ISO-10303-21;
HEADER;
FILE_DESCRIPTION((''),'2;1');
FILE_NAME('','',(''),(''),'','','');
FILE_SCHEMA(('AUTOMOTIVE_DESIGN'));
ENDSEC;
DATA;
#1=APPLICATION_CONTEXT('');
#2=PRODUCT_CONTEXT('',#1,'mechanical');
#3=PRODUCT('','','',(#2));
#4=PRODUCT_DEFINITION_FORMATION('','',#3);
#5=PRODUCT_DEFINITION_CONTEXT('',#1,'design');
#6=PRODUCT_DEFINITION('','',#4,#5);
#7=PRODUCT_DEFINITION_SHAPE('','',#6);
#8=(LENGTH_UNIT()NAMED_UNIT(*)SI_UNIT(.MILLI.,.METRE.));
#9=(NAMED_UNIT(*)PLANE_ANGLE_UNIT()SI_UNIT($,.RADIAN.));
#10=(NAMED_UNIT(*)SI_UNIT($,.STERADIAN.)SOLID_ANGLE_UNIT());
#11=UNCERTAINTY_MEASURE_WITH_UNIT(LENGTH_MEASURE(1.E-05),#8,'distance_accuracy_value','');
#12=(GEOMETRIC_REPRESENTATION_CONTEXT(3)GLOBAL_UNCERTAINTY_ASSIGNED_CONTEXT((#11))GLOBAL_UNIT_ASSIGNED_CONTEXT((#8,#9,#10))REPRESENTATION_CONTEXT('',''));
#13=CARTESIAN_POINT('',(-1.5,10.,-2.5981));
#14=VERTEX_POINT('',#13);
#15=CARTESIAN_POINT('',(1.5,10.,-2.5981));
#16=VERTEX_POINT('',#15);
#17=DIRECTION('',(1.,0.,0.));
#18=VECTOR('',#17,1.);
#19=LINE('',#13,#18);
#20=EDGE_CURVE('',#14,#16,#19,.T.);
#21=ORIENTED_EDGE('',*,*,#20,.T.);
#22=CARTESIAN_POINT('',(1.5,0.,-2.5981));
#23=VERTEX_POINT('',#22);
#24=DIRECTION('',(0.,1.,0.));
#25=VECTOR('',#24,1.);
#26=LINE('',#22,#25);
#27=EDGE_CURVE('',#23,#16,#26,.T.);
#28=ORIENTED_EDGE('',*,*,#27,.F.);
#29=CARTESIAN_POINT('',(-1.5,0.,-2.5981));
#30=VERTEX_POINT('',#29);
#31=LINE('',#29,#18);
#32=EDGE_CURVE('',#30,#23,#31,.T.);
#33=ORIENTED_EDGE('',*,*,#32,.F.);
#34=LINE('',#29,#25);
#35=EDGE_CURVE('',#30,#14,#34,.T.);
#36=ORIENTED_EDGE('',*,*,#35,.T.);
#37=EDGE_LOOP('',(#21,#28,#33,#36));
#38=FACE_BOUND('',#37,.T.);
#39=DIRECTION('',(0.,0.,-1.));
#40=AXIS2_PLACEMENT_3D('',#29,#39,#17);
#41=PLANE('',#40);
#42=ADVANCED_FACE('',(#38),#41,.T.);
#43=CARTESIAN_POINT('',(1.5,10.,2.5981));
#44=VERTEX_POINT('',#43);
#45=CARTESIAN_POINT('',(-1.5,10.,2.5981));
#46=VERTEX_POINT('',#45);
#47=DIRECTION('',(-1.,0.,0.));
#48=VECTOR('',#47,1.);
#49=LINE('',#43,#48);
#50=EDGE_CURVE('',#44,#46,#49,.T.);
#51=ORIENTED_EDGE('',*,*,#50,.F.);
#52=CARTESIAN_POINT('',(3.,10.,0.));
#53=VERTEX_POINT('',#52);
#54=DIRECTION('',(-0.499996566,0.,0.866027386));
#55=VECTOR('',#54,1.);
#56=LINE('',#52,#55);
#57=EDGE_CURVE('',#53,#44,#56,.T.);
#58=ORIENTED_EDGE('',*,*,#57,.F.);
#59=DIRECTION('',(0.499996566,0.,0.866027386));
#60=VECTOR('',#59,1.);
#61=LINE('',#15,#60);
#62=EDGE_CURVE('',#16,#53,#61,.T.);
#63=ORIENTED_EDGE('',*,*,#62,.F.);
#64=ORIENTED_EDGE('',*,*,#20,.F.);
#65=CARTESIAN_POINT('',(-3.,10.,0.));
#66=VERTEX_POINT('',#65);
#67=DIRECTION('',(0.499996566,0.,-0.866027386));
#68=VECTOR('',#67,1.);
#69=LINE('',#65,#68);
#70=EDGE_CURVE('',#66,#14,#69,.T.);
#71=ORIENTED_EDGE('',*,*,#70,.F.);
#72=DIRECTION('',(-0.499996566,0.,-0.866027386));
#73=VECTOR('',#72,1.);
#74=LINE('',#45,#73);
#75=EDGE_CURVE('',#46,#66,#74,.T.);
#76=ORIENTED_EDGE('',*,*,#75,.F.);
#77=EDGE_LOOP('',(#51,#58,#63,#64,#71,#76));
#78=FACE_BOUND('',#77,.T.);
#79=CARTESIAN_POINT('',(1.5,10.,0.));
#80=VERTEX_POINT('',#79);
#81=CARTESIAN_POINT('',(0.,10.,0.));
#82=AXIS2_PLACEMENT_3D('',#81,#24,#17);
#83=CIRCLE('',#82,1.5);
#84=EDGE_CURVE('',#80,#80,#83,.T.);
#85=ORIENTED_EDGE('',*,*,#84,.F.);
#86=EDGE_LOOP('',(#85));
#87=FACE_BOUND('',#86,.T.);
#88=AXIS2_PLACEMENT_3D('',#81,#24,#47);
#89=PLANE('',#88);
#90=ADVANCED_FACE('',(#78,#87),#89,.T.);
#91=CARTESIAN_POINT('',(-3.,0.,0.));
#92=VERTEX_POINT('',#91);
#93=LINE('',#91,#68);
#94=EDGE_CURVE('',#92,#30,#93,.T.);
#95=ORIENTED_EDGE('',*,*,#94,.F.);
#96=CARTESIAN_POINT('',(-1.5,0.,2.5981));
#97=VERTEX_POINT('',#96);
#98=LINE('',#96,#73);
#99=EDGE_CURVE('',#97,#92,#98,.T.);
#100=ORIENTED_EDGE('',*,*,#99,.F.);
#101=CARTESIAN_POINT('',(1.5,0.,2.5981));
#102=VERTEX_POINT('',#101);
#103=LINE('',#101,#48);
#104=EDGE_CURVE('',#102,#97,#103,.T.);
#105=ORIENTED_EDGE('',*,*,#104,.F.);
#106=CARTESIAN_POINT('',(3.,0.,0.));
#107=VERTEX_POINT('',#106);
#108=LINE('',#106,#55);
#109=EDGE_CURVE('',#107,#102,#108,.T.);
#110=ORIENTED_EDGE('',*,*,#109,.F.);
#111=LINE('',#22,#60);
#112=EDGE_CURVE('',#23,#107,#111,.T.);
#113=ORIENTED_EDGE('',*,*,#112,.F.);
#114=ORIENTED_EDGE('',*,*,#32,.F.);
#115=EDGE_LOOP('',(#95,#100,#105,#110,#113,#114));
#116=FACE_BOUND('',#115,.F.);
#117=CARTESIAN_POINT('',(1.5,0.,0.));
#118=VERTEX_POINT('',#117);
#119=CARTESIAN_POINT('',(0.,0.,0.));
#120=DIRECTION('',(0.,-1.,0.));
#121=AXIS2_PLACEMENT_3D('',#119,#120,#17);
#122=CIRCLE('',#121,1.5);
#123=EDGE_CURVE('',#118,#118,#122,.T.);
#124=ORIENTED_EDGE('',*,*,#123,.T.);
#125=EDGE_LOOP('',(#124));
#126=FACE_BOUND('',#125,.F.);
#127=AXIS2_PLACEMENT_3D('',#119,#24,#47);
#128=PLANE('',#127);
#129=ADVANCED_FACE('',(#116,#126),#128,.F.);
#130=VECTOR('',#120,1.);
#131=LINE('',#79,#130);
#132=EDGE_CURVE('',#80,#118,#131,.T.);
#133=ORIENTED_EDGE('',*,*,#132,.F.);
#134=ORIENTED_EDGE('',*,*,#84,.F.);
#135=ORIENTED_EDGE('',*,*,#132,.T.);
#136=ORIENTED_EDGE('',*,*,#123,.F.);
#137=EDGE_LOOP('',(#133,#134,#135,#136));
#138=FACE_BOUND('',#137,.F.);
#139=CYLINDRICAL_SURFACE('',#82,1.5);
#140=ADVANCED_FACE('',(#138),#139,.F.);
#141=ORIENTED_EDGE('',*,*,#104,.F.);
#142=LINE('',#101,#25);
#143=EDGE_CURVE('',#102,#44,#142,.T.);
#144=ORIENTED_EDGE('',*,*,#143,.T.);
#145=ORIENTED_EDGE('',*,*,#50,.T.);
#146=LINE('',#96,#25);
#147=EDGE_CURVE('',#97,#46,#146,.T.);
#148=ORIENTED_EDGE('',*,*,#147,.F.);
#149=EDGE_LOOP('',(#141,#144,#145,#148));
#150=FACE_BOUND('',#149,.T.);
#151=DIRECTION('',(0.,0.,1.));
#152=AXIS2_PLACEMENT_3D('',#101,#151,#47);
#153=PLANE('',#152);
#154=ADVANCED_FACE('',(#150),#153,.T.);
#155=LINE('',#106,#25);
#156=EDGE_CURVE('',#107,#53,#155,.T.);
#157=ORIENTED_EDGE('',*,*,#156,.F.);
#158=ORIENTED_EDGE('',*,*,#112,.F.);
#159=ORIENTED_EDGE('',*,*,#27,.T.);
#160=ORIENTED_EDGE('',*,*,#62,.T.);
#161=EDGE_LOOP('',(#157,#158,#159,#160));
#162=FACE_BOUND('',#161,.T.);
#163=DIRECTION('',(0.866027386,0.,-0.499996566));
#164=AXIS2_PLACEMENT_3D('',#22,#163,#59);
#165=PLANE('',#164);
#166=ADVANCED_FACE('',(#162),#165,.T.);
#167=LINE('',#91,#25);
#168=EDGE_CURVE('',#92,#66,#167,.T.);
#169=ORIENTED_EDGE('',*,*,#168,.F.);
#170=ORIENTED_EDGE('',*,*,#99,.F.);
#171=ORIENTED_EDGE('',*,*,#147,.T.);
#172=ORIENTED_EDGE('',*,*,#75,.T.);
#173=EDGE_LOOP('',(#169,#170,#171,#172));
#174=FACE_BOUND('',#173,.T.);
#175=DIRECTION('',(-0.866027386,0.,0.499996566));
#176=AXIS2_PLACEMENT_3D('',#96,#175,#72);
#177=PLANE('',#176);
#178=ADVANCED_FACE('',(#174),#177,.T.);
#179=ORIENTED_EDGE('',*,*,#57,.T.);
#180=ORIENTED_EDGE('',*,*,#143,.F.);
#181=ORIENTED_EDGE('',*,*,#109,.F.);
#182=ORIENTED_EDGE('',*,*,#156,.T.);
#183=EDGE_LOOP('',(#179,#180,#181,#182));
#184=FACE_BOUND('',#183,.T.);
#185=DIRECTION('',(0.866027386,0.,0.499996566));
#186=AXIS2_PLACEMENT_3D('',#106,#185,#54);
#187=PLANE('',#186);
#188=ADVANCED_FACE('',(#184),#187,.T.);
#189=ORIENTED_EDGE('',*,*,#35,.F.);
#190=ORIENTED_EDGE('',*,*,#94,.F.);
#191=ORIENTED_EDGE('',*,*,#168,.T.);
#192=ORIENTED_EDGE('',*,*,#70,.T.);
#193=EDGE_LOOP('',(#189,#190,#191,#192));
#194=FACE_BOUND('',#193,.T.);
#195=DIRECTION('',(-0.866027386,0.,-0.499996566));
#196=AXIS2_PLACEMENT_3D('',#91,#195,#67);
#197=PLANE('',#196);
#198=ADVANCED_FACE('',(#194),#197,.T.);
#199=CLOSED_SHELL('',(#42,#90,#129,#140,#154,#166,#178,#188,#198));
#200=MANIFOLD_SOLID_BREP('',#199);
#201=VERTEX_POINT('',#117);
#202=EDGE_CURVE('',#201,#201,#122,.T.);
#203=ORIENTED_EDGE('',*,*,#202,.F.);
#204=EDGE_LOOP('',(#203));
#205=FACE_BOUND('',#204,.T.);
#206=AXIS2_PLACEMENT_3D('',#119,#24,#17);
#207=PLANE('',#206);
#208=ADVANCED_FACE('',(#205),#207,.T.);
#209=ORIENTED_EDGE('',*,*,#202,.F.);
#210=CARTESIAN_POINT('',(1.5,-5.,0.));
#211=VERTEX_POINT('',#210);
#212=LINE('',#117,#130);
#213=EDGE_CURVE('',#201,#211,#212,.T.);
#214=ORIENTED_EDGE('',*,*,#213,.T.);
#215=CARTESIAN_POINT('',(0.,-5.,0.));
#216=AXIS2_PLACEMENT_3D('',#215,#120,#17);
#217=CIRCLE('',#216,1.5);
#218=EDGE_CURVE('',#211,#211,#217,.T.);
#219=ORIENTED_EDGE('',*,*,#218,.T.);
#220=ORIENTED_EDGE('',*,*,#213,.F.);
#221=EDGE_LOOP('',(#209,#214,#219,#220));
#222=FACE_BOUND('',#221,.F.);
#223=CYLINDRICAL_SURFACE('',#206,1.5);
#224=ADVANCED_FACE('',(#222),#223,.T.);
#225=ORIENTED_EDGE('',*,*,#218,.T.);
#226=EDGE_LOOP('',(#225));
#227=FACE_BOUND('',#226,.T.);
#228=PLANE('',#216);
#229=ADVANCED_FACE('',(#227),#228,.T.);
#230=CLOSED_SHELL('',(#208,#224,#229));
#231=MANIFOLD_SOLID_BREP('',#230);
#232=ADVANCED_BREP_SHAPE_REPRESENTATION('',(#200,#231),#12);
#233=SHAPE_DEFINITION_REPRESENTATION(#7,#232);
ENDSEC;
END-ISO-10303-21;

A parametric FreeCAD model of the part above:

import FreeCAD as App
import Part
import Sketcher
Q = App.Units.Quantity

doc = App.newDocument("Part")
body = doc.addObject("PartDesign::Body", "Body")
body.AllowCompound = True

sketch1 = body.newObject("Sketcher::SketchObject", "Sketch")
sketch1.AttachmentSupport = (doc.getObject("XZ_Plane"), [""])
sketch1.MapMode = "FlatFace"
sketch1.addGeometry(Part.LineSegment(App.Vector(1.5, 2.5981, 0), App.Vector(3, 0, 0)), False)
sketch1.addGeometry(Part.LineSegment(App.Vector(3, 0, 0), App.Vector(1.5, -2.5981, 0)), False)
sketch1.addGeometry(Part.LineSegment(App.Vector(1.5, -2.5981, 0), App.Vector(-1.5, -2.5981, 0)), False)
sketch1.addGeometry(Part.LineSegment(App.Vector(-1.5, -2.5981, 0), App.Vector(-3, 0, 0)), False)
sketch1.addGeometry(Part.LineSegment(App.Vector(-3, 0, 0), App.Vector(-1.5, 2.5981, 0)), False)
sketch1.addGeometry(Part.LineSegment(App.Vector(-1.5, 2.5981, 0), App.Vector(1.5, 2.5981, 0)), False)
sketch1.addConstraint(Sketcher.Constraint("Coincident", 0, 2, 1, 1))
sketch1.addConstraint(Sketcher.Constraint("Coincident", 1, 2, 2, 1))
sketch1.addConstraint(Sketcher.Constraint("Coincident", 2, 2, 3, 1))
sketch1.addConstraint(Sketcher.Constraint("Coincident", 3, 2, 4, 1))
sketch1.addConstraint(Sketcher.Constraint("Coincident", 4, 2, 5, 1))
sketch1.addConstraint(Sketcher.Constraint("Coincident", 5, 2, 0, 1))
sketch1.addConstraint(Sketcher.Constraint("Horizontal", 2))
sketch1.addConstraint(Sketcher.Constraint("Horizontal", 5))
sketch1.addConstraint(Sketcher.Constraint("Symmetric", 0, 2, 3, 2, -1, 1))
sketch1.addConstraint(Sketcher.Constraint("Symmetric", 1, 2, 4, 2, -1, 1))
sketch1.addConstraint(Sketcher.Constraint("PointOnObject", 0, 2, -1))
sketch1.addConstraint(Sketcher.Constraint("Parallel", 0, 3))
sketch1.addConstraint(Sketcher.Constraint("Vertical", 2, 2, 4, 2))
sketch1.addConstraint(Sketcher.Constraint("DistanceX", 3, 2, 0, 2, 6.0))
sketch1.addConstraint(Sketcher.Constraint("DistanceX", 2, 2, 2, 1, 3.0))
sketch1.addConstraint(Sketcher.Constraint("Angle", 0, Q("-60.0002 deg")))
pad1 = body.newObject("PartDesign::Pad", "Pad")
pad1.Profile = sketch1
pad1.Length = 10
pad1.Reversed = True

sketch2 = body.newObject("Sketcher::SketchObject", "Sketch001")
sketch2.AttachmentSupport = (doc.getObject("XZ_Plane"), [""])
sketch2.MapMode = "FlatFace"
sketch2.addGeometry(Part.Circle(App.Vector(0, 0, 0), App.Vector(0, 0, 1), 1.5), False)
sketch2.addConstraint(Sketcher.Constraint("Coincident", 0, 3, -1, 1))
sketch2.addConstraint(Sketcher.Constraint("Diameter", 0, 3.0))
pad2 = body.newObject("PartDesign::Pad", "Pad001")
pad2.Profile = sketch2
pad2.Length = 5

sketch3 = body.newObject("Sketcher::SketchObject", "Sketch002")
sketch3.AttachmentSupport = (doc.getObject("XZ_Plane"), [""])
sketch3.MapMode = "FlatFace"
sketch3.AttachmentOffset = App.Placement(App.Vector(0, 0, -10), App.Rotation())
sketch3.addGeometry(Part.Circle(App.Vector(0, 0, 0), App.Vector(0, 0, 1), 1.5), False)
sketch3.addConstraint(Sketcher.Constraint("Coincident", 0, 3, -1, 1))
sketch3.addConstraint(Sketcher.Constraint("Diameter", 0, 3.0))
pocket1 = body.newObject("PartDesign::Pocket", "Pocket")
pocket1.Profile = sketch3
pocket1.Length = 10
pocket1.Reversed = True

doc.recompute()
